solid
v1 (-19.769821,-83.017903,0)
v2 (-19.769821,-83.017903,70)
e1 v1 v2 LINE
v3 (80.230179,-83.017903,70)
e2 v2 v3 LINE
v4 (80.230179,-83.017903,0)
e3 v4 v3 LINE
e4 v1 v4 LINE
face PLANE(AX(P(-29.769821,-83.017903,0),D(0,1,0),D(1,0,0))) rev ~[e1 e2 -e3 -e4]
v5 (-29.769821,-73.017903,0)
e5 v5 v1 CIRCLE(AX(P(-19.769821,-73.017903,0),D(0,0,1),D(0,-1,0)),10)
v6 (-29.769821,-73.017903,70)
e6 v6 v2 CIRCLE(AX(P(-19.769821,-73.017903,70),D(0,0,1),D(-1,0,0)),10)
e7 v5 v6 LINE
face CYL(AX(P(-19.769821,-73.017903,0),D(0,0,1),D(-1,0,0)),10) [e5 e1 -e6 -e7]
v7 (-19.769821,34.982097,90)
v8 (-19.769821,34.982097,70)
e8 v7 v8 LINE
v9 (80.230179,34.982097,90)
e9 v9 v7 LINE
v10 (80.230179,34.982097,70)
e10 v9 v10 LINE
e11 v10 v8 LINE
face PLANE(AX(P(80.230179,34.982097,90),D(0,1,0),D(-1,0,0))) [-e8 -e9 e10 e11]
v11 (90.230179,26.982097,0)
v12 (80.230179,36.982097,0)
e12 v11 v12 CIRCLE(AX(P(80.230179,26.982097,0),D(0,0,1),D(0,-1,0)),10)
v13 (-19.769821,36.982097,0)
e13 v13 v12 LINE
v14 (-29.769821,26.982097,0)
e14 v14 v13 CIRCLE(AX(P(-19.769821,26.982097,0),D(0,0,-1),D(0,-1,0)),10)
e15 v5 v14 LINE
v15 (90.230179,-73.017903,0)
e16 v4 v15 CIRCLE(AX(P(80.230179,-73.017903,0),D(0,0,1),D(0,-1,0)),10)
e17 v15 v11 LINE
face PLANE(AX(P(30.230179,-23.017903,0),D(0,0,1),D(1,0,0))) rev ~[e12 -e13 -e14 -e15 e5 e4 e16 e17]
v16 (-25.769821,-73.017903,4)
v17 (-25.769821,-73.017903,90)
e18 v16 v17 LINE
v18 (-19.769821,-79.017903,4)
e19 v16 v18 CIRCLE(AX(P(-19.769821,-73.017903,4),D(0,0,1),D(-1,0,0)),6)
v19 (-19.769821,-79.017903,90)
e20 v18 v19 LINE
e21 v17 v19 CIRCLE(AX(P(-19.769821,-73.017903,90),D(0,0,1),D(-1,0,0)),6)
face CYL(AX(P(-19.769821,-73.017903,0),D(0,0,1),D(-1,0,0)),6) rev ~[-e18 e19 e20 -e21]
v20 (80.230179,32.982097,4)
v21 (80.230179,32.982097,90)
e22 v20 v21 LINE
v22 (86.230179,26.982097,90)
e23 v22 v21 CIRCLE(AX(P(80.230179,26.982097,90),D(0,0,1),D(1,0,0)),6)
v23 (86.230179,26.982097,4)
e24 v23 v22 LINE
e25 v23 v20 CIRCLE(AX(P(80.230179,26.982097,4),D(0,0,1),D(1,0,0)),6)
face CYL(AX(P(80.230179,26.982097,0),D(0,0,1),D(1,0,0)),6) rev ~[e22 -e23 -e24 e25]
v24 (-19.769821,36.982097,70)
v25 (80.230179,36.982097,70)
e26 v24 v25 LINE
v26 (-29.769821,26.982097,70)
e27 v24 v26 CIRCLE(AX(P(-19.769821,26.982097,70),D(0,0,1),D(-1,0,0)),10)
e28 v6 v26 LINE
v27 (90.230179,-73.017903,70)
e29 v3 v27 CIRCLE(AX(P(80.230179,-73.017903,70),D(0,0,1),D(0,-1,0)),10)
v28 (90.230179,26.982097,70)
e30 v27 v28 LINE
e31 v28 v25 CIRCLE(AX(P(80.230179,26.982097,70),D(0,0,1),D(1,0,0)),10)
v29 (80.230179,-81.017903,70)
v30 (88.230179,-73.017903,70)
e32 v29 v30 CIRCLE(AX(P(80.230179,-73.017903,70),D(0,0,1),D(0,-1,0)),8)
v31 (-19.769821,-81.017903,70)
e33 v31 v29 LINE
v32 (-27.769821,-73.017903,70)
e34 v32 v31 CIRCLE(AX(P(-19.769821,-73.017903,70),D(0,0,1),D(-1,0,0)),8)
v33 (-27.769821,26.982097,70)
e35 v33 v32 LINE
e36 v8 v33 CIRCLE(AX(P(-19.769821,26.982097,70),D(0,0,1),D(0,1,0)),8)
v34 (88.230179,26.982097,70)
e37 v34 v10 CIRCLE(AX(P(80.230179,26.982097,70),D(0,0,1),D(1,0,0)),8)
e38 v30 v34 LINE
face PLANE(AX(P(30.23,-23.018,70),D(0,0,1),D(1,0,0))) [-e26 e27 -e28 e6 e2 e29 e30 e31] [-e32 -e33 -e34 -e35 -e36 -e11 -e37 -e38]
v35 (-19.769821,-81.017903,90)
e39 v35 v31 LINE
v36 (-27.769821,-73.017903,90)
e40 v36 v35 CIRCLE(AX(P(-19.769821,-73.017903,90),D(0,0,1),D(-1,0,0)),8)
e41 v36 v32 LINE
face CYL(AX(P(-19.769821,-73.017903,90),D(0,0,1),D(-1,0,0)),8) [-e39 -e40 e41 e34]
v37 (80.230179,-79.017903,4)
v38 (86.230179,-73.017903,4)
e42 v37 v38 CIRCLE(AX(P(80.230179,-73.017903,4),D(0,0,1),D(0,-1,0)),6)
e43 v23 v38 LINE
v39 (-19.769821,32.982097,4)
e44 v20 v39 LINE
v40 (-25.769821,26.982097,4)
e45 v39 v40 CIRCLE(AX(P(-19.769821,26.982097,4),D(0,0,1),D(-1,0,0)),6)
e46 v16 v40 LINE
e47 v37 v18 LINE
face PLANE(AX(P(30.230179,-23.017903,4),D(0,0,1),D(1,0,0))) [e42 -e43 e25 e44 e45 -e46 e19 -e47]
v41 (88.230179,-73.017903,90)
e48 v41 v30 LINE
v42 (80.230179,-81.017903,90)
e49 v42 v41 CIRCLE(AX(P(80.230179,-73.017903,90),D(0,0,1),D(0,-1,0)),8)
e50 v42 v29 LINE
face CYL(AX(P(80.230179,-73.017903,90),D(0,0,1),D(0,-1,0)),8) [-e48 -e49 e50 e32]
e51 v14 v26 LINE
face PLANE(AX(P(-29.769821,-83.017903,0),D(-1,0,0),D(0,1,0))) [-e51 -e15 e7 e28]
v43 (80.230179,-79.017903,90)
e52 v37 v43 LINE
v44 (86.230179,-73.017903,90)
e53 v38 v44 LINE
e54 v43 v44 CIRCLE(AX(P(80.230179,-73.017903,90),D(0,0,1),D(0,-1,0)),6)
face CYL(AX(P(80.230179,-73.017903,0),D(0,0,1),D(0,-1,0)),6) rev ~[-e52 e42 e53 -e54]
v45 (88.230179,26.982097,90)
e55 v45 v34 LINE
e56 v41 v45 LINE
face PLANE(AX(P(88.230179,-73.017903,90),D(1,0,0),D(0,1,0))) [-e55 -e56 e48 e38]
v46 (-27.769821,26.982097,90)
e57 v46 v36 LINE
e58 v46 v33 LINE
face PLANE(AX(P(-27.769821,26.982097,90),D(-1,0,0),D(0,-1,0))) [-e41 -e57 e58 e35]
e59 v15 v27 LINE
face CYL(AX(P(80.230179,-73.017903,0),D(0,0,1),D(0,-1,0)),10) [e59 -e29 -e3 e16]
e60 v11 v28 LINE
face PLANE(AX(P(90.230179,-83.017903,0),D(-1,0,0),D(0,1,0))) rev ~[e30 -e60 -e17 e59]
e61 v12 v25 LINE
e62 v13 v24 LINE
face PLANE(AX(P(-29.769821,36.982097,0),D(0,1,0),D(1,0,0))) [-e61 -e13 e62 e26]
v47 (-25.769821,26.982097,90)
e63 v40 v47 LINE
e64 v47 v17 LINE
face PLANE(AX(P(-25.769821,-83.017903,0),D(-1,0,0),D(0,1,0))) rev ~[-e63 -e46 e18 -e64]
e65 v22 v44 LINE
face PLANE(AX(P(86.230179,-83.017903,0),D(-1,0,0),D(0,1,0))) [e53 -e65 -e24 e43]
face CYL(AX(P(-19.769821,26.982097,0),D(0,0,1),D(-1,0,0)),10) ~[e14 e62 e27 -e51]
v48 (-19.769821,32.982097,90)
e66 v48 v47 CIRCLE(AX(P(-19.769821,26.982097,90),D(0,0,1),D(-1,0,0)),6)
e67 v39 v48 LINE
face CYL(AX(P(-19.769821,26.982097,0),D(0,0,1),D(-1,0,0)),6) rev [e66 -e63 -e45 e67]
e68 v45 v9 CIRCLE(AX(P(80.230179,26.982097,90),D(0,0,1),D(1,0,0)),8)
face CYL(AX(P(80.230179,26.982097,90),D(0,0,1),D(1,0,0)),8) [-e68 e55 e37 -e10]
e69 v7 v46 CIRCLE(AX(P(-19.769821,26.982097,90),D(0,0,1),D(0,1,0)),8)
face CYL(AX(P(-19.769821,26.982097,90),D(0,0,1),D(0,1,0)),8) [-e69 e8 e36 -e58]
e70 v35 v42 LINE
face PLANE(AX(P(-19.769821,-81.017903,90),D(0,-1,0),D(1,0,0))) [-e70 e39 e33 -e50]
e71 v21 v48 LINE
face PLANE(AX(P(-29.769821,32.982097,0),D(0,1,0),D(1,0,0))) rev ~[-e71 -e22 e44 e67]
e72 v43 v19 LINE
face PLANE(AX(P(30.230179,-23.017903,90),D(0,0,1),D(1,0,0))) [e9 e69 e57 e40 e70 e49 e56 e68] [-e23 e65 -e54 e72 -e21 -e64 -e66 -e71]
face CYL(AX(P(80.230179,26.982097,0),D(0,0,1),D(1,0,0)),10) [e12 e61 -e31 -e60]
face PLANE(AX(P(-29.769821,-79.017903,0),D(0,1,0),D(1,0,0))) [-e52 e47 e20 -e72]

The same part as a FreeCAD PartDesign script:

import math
import FreeCAD as App
import Part
import Sketcher
from FreeCAD import Vector


def edges_at(feature, points):
    """Names of the edges that pass closest to the given points."""
    edges = feature.Shape.Edges
    near = lambda p: min(range(len(edges)), key=lambda i: edges[i].distToShape(Part.Vertex(*p))[0])
    return sorted({f"Edge{near(p) + 1}" for p in points})


def faces_at(feature, points):
    """Names of the faces that lie closest to the given points."""
    faces = feature.Shape.Faces
    near = lambda p: min(range(len(faces)), key=lambda i: faces[i].distToShape(Part.Vertex(*p))[0])
    return sorted({f"Face{near(p) + 1}" for p in points})

doc = App.newDocument("Part")
params = doc.addObject("Spreadsheet::Sheet", "Params")
for row, (alias, value) in enumerate([
    ("sketch1_width", "120 mm"),
    ("pad1_length", "90 mm"),
    ("fillet_radius", "10 mm"),
    ("thickness_wall", "4 mm"),
    ("sketch2_radius", "8 mm"),
    ("sketch2_width", "100 mm"),
    ("pocket1_length", "20 mm"),
], start=1):
    params.set(f"A{row}", alias)
    params.set(f"B{row}", "=" + value)
    params.setAlias(f"B{row}", alias)

body = doc.addObject("PartDesign::Body", "Body")

sketch1 = body.newObject("Sketcher::SketchObject", "Sketch")
sketch1.AttachmentSupport = (doc.getObject("XY_Plane"), [""])
sketch1.MapMode = "FlatFace"
sketch1.addGeometry([
    Part.LineSegment(Vector(-30, 37, 0), Vector(-30, -83, 0)),
    Part.LineSegment(Vector(-30, -83, 0), Vector(90, -83, 0)),
    Part.LineSegment(Vector(90, -83, 0), Vector(90, 37, 0)),
    Part.LineSegment(Vector(90, 37, 0), Vector(-30, 37, 0)),
], False)
sketch1.addConstraint([
    Sketcher.Constraint("Coincident", 0, 2, 1, 1),
    Sketcher.Constraint("Coincident", 1, 2, 2, 1),
    Sketcher.Constraint("Coincident", 2, 2, 3, 1),
    Sketcher.Constraint("Coincident", 3, 2, 0, 1),
    Sketcher.Constraint("Vertical", 0),
    Sketcher.Constraint("Horizontal", 1),
    Sketcher.Constraint("Vertical", 2),
    Sketcher.Constraint("Horizontal", 3),
    Sketcher.Constraint("Equal", 3, 0),
    Sketcher.Constraint("DistanceX", 1, 1, 1, 2, 120.0),
    Sketcher.Constraint("DistanceX", 0, 2, -1, 1, 29.769821),
    Sketcher.Constraint("DistanceY", 0, 2, -1, 1, 83.017903),
])
sketch1.setExpression("Constraints[9]", "Params.sketch1_width")
pad1 = body.newObject("PartDesign::Pad", "Pad")
pad1.Profile = sketch1
pad1.setExpression("Length", "Params.pad1_length")
doc.recompute()

fillet = body.newObject("PartDesign::Fillet", "Fillet")
fillet.Base = (pad1, edges_at(pad1, [
    (-29.77, 36.982, 45),
    (90.23, 36.982, 45),
    (90.23, -83.018, 45),
    (-29.77, -83.018, 45),
]))
fillet.setExpression("Radius", "Params.fillet_radius")
doc.recompute()

thickness = body.newObject("PartDesign::Thickness", "Thickness")
thickness.Base = (fillet, faces_at(fillet, [(30.23, -23.018, 90)]))
thickness.setExpression("Value", "Params.thickness_wall")
thickness.Reversed = True
thickness.Join = "Intersection"

sketch2 = body.newObject("Sketcher::SketchObject", "Sketch001")
sketch2.AttachmentSupport = (doc.getObject("XY_Plane"), [""])
sketch2.MapMode = "FlatFace"
sketch2.AttachmentOffset = App.Placement(Vector(0, 0, 90), App.Rotation())
sketch2.addGeometry([
    Part.LineSegment(Vector(-50, 57, 0), Vector(-50, -103, 0)),
    Part.LineSegment(Vector(-50, -103, 0), Vector(110, -103, 0)),
    Part.LineSegment(Vector(110, -103, 0), Vector(110, 57, 0)),
    Part.LineSegment(Vector(110, 57, 0), Vector(-50, 57, 0)),
    Part.LineSegment(Vector(-28, -73, 0), Vector(-28, 27, 0)),
    Part.ArcOfCircle(Part.Circle(Vector(-20, 27, 0), Vector(0, 0, 1), 8), math.radians(90), math.radians(180)),
    Part.LineSegment(Vector(-20, 35, 0), Vector(80, 35, 0)),
    Part.ArcOfCircle(Part.Circle(Vector(80, 27, 0), Vector(0, 0, 1), 8), math.radians(0), math.radians(90)),
    Part.LineSegment(Vector(88, 27, 0), Vector(88, -73, 0)),
    Part.ArcOfCircle(Part.Circle(Vector(80, -73, 0), Vector(0, 0, 1), 8), math.radians(-90), math.radians(0)),
    Part.LineSegment(Vector(80, -81, 0), Vector(-20, -81, 0)),
    Part.ArcOfCircle(Part.Circle(Vector(-20, -73, 0), Vector(0, 0, 1), 8), math.radians(180), math.radians(270)),
], False)
sketch2.addConstraint([
    Sketcher.Constraint("Coincident", 0, 2, 1, 1),
    Sketcher.Constraint("Coincident", 1, 2, 2, 1),
    Sketcher.Constraint("Coincident", 2, 2, 3, 1),
    Sketcher.Constraint("Coincident", 3, 2, 0, 1),
    Sketcher.Constraint("Tangent", 4, 2, 5, 2),
    Sketcher.Constraint("Tangent", 5, 1, 6, 1),
    Sketcher.Constraint("Tangent", 6, 2, 7, 2),
    Sketcher.Constraint("Tangent", 7, 1, 8, 1),
    Sketcher.Constraint("Tangent", 8, 2, 9, 2),
    Sketcher.Constraint("Tangent", 9, 1, 10, 1),
    Sketcher.Constraint("Tangent", 10, 2, 11, 2),
    Sketcher.Constraint("Tangent", 11, 1, 4, 1),
    Sketcher.Constraint("Vertical", 0),
    Sketcher.Constraint("Horizontal", 1),
    Sketcher.Constraint("Vertical", 2),
    Sketcher.Constraint("Horizontal", 3),
    Sketcher.Constraint("Vertical", 4),
    Sketcher.Constraint("Horizontal", 6),
    Sketcher.Constraint("Vertical", 8),
    Sketcher.Constraint("Horizontal", 10),
    Sketcher.Constraint("Equal", 5, 7),
    Sketcher.Constraint("Equal", 7, 9),
    Sketcher.Constraint("Equal", 9, 11),
    Sketcher.Constraint("Equal", 3, 0),
    Sketcher.Constraint("Equal", 10, 4),
    Sketcher.Constraint("Radius", 5, 8.0),
    Sketcher.Constraint("DistanceX", 6, 1, 6, 2, 100.0),
    Sketcher.Constraint("DistanceX", 1, 1, 1, 2, 160.418),
    Sketcher.Constraint("DistanceX", 0, 2, -1, 1, 49.979),
    Sketcher.Constraint("DistanceY", 0, 2, -1, 1, 103.227),
    Sketcher.Constraint("DistanceX", 5, 3, -1, 1, 19.769821),
    Sketcher.Constraint("DistanceY", -1, 1, 5, 3, 26.982097),
])
sketch2.setExpression("Constraints[25]", "Params.sketch2_radius")
sketch2.setExpression("Constraints[26]", "Params.sketch2_width")
pocket1 = body.newObject("PartDesign::Pocket", "Pocket")
pocket1.Profile = sketch2
pocket1.setExpression("Length", "Params.pocket1_length")

doc.recompute()
